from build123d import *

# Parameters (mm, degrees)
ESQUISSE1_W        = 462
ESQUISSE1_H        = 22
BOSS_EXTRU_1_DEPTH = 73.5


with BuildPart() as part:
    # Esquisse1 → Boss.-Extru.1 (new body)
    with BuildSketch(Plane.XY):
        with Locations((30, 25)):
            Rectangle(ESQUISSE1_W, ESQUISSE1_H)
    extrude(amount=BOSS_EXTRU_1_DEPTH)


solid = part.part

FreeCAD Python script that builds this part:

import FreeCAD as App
import Part
import Sketcher
Q = App.Units.Quantity

doc = App.newDocument("Part")
params = doc.addObject("Spreadsheet::Sheet", "Params")
for row, (alias, value) in enumerate([
    ("sketch1_width", "462 mm"),
    ("sketch1_height", "22 mm"),
    ("pad1_length", "73.5 mm"),
], start=1):
    params.set(f"A{row}", alias)
    params.set(f"B{row}", "=" + value)
    params.setAlias(f"B{row}", alias)

body = doc.addObject("PartDesign::Body", "Body")

sketch1 = body.newObject("Sketcher::SketchObject", "Sketch")
sketch1.AttachmentSupport = (doc.getObject("XY_Plane"), [""])
sketch1.MapMode = "FlatFace"
sketch1.addGeometry([
    Part.LineSegment(App.Vector(-201, 36, 0), App.Vector(-201, 14, 0)),
    Part.LineSegment(App.Vector(-201, 14, 0), App.Vector(261, 14, 0)),
    Part.LineSegment(App.Vector(261, 14, 0), App.Vector(261, 36, 0)),
    Part.LineSegment(App.Vector(261, 36, 0), App.Vector(-201, 36, 0)),
], False)
sketch1.addConstraint([
    Sketcher.Constraint("Coincident", 0, 2, 1, 1),
    Sketcher.Constraint("Coincident", 1, 2, 2, 1),
    Sketcher.Constraint("Coincident", 2, 2, 3, 1),
    Sketcher.Constraint("Coincident", 3, 2, 0, 1),
    Sketcher.Constraint("Vertical", 0),
    Sketcher.Constraint("Horizontal", 1),
    Sketcher.Constraint("Vertical", 2),
    Sketcher.Constraint("Horizontal", 3),
    Sketcher.Constraint("DistanceX", 1, 1, 1, 2, Q("462 mm")),
    Sketcher.Constraint("DistanceY", 0, 2, 0, 1, Q("22 mm")),
    Sketcher.Constraint("DistanceX", 0, 2, -1, 1, Q("201 mm")),
    Sketcher.Constraint("DistanceY", -1, 1, 0, 2, Q("14 mm")),
])
sketch1.setExpression("Constraints[8]", "Params.sketch1_width")
sketch1.setExpression("Constraints[9]", "Params.sketch1_height")
pad1 = body.newObject("PartDesign::Pad", "Pad")
pad1.Profile = sketch1
pad1.setExpression("Length", "Params.pad1_length")

doc.recompute()
